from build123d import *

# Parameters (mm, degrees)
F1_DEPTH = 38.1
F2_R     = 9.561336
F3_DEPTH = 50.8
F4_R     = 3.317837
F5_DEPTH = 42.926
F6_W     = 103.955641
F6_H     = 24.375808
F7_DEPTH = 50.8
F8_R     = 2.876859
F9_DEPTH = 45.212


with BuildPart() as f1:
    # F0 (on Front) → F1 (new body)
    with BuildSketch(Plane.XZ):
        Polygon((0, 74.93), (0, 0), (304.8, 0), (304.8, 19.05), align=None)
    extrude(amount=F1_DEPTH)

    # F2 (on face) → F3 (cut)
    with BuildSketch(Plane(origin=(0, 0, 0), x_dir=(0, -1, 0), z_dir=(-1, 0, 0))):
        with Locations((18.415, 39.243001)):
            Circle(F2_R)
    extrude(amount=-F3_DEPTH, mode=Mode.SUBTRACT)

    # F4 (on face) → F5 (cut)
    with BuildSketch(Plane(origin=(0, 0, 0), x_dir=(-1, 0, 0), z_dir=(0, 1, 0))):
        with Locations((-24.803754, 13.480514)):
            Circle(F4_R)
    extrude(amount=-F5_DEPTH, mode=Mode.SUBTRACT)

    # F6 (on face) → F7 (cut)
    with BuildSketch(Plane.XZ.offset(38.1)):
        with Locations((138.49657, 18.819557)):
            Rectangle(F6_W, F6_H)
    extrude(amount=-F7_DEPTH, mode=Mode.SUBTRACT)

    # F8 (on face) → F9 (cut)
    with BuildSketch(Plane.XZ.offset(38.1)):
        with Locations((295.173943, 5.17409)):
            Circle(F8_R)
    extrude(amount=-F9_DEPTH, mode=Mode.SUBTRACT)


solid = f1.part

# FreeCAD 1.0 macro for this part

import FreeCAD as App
import Part
import Sketcher

V = App.Vector
Q = App.Units.Quantity

doc = App.newDocument("Part")
body = doc.addObject("PartDesign::Body", "Body")

# Sketch on XZ plane
sketch1 = body.newObject("Sketcher::SketchObject", "Sketch")
sketch1.AttachmentSupport = (doc.getObject("XZ_Plane"), [""])
sketch1.MapMode = "FlatFace"
sketch1.addGeometry([
    Part.LineSegment(V(0, 75, 0), V(0, 0, 0)),
    Part.LineSegment(V(0, 0, 0), V(305, 0, 0)),
    Part.LineSegment(V(305, 0, 0), V(305, 19, 0)),
    Part.LineSegment(V(305, 19, 0), V(0, 75, 0)),
], False)
sketch1.addConstraint([
    Sketcher.Constraint("Coincident", 0, 2, 1, 1),
    Sketcher.Constraint("Coincident", 1, 2, 2, 1),
    Sketcher.Constraint("Coincident", 2, 2, 3, 1),
    Sketcher.Constraint("Coincident", 3, 2, 0, 1),
    Sketcher.Constraint("Vertical", 0),
    Sketcher.Constraint("Horizontal", 1),
    Sketcher.Constraint("Vertical", 2),
    Sketcher.Constraint("Coincident", 0, 2, -1, 1),
    Sketcher.Constraint("DistanceX", 1, 1, 1, 2, Q("12 in")),
    Sketcher.Constraint("Distance", 3, Q("12.2 in")),
    Sketcher.Constraint("DistanceY", 0, 2, 0, 1, Q("2.95 in")),
])
pad1 = body.newObject("PartDesign::Pad", "Pad")
pad1.Profile = sketch1
pad1.Length = Q("1.5 in")

# Sketch on YZ plane
sketch2 = body.newObject("Sketcher::SketchObject", "Sketch001")
sketch2.AttachmentSupport = (doc.getObject("YZ_Plane"), [""])
sketch2.MapMode = "FlatFace"
sketch2.addGeometry(Part.Circle(V(-18, 39, 0), V(0, 0, 1), 10), False)
sketch2.addConstraint([
    Sketcher.Constraint("DistanceX", 0, 3, -1, 1, Q("0.725 in")),
    Sketcher.Constraint("DistanceY", -1, 1, 0, 3, Q("1.545 in")),
    Sketcher.Constraint("Diameter", 0, Q("19.122672 mm")),
])
pocket1 = body.newObject("PartDesign::Pocket", "Pocket")
pocket1.Profile = sketch2
pocket1.Length = Q("2 in")
pocket1.Reversed = True

# Sketch on XZ plane
sketch3 = body.newObject("Sketcher::SketchObject", "Sketch002")
sketch3.AttachmentSupport = (doc.getObject("XZ_Plane"), [""])
sketch3.MapMode = "FlatFace"
sketch3.addGeometry(Part.Circle(V(24.8, 13.5, 0), V(0, 0, 1), 3.3), False)
sketch3.addConstraint([
    Sketcher.Constraint("Diameter", 0, Q("6.635674 mm")),
    Sketcher.Constraint("DistanceX", -1, 1, 0, 3, Q("24.803754 mm")),
    Sketcher.Constraint("DistanceY", -1, 1, 0, 3, Q("13.480514 mm")),
])
pocket2 = body.newObject("PartDesign::Pocket", "Pocket001")
pocket2.Profile = sketch3
pocket2.Length = Q("1.69 in")
pocket2.Reversed = True

# Sketch on XZ plane
sketch4 = body.newObject("Sketcher::SketchObject", "Sketch003")
sketch4.AttachmentSupport = (doc.getObject("XZ_Plane"), [""])
sketch4.MapMode = "FlatFace"
sketch4.AttachmentOffset = App.Placement(V(0, 0, 1.5 * 25.4), App.Rotation())
sketch4.addGeometry([
    Part.LineSegment(V(87, 31, 0), V(87, 7, 0)),
    Part.LineSegment(V(87, 7, 0), V(190, 7, 0)),
    Part.LineSegment(V(190, 7, 0), V(190, 31, 0)),
    Part.LineSegment(V(190, 31, 0), V(87, 31, 0)),
], False)
sketch4.addConstraint([
    Sketcher.Constraint("Coincident", 0, 2, 1, 1),
    Sketcher.Constraint("Coincident", 1, 2, 2, 1),
    Sketcher.Constraint("Coincident", 2, 2, 3, 1),
    Sketcher.Constraint("Coincident", 3, 2, 0, 1),
    Sketcher.Constraint("Vertical", 0),
    Sketcher.Constraint("Horizontal", 1),
    Sketcher.Constraint("Vertical", 2),
    Sketcher.Constraint("Horizontal", 3),
    Sketcher.Constraint("DistanceX", -1, 1, 0, 2, Q("3.40625 in")),
    Sketcher.Constraint("DistanceX", 1, 1, 1, 2, Q("103.955641 mm")),
    Sketcher.Constraint("DistanceY", 0, 2, 0, 1, Q("24.375808 mm")),
    Sketcher.Constraint("DistanceY", -1, 1, 2, 2, Q("31.007461 mm")),
])
pocket3 = body.newObject("PartDesign::Pocket", "Pocket002")
pocket3.Profile = sketch4
pocket3.Length = Q("2 in")

# Sketch on XZ plane
sketch5 = body.newObject("Sketcher::SketchObject", "Sketch004")
sketch5.AttachmentSupport = (doc.getObject("XZ_Plane"), [""])
sketch5.MapMode = "FlatFace"
sketch5.AttachmentOffset = App.Placement(V(0, 0, 1.5 * 25.4), App.Rotation())
sketch5.addGeometry(Part.Circle(V(295.2, 5.2, 0), V(0, 0, 1), 2.9), False)
sketch5.addConstraint([
    Sketcher.Constraint("Diameter", 0, Q("5.753718 mm")),
    Sketcher.Constraint("DistanceY", -1, 1, 0, 3, Q("5.17409 mm")),
    Sketcher.Constraint("DistanceX", -1, 1, 0, 3, Q("295.173943 mm")),
])
pocket4 = body.newObject("PartDesign::Pocket", "Pocket003")
pocket4.Profile = sketch5
pocket4.Length = Q("1.78 in")

doc.recompute()
